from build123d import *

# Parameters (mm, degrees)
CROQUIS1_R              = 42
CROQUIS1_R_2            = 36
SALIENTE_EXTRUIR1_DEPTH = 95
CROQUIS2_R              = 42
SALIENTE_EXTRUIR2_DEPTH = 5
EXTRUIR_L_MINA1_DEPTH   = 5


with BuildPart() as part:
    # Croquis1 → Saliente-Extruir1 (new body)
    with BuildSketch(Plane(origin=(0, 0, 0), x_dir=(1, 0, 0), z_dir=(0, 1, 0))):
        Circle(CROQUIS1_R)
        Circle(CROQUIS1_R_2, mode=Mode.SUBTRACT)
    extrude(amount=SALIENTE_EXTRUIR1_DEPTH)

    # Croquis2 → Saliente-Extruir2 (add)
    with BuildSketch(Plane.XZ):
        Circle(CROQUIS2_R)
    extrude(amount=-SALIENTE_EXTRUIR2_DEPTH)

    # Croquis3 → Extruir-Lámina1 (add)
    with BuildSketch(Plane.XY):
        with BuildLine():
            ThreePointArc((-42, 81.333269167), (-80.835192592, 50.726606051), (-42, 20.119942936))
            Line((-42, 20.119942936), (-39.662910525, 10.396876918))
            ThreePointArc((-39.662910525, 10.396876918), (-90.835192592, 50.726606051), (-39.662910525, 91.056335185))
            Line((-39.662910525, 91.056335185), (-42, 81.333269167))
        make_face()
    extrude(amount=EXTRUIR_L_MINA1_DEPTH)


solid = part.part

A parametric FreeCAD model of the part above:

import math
import FreeCAD as App
import Part
import Sketcher

doc = App.newDocument("Part")
params = doc.addObject("Spreadsheet::Sheet", "Params")
for row, (alias, value) in enumerate([
    ("sketch1_diameter", "84 mm"),
    ("sketch1_diameter2", "72 mm"),
    ("pad1_length", "95 mm"),
    ("sketch2_diameter", "84 mm"),
    ("pad2_length", "5 mm"),
    ("sketch3_length", "10 mm"),
    ("pad3_length", "5 mm"),
], start=1):
    params.set(f"A{row}", alias)
    params.set(f"B{row}", "=" + value)
    params.setAlias(f"B{row}", alias)

body = doc.addObject("PartDesign::Body", "Body")

# Sketch on XZ plane
sketch1 = body.newObject("Sketcher::SketchObject", "Sketch")
sketch1.AttachmentSupport = (doc.getObject("XZ_Plane"), [""])
sketch1.MapMode = "FlatFace"
sketch1.addGeometry([
    Part.Circle(App.Vector(0, 0, 0), App.Vector(0, 0, 1), 42),
    Part.Circle(App.Vector(0, 0, 0), App.Vector(0, 0, 1), 36),
], False)
sketch1.addConstraint([
    Sketcher.Constraint("Coincident", 0, 3, -1, 1),
    Sketcher.Constraint("Coincident", 1, 3, -1, 1),
    Sketcher.Constraint("Diameter", 0, 84.0),
    Sketcher.Constraint("Diameter", 1, 72.0),
])
sketch1.setExpression("Constraints[2]", "Params.sketch1_diameter")
sketch1.setExpression("Constraints[3]", "Params.sketch1_diameter2")
pad1 = body.newObject("PartDesign::Pad", "Pad")
pad1.Profile = sketch1
pad1.setExpression("Length", "Params.pad1_length")
pad1.Reversed = True

# Sketch on XZ plane
sketch2 = body.newObject("Sketcher::SketchObject", "Sketch001")
sketch2.AttachmentSupport = (doc.getObject("XZ_Plane"), [""])
sketch2.MapMode = "FlatFace"
sketch2.addGeometry(Part.Circle(App.Vector(0, 0, 0), App.Vector(0, 0, 1), 42), False)
sketch2.addConstraint([
    Sketcher.Constraint("Coincident", 0, 3, -1, 1),
    Sketcher.Constraint("Diameter", 0, 84.0),
])
sketch2.setExpression("Constraints[1]", "Params.sketch2_diameter")
pad2 = body.newObject("PartDesign::Pad", "Pad001")
pad2.Profile = sketch2
pad2.setExpression("Length", "Params.pad2_length")
pad2.Reversed = True

# Sketch on XY plane
sketch3 = body.newObject("Sketcher::SketchObject", "Sketch002")
sketch3.AttachmentSupport = (doc.getObject("XY_Plane"), [""])
sketch3.MapMode = "FlatFace"
sketch3.addGeometry([
    Part.ArcOfCircle(Part.Circle(App.Vector(-49, 51, 0), App.Vector(0, 0, 1), 31), math.radians(76), math.radians(284)),
    Part.LineSegment(App.Vector(-42, 81, 0), App.Vector(-40, 91, 0)),
    Part.ArcOfCircle(Part.Circle(App.Vector(-49, 51, 0), App.Vector(0, 0, 1), 41), math.radians(76), math.radians(284)),
    Part.LineSegment(App.Vector(-40, 10, 0), App.Vector(-42, 20, 0)),
], False)
sketch3.addConstraint([
    Sketcher.Constraint("Coincident", 0, 1, 1, 1),
    Sketcher.Constraint("Coincident", 1, 2, 2, 1),
    Sketcher.Constraint("Coincident", 2, 2, 3, 1),
    Sketcher.Constraint("Coincident", 3, 2, 0, 2),
    Sketcher.Constraint("Coincident", 2, 3, 0, 3),
    Sketcher.Constraint("Vertical", 1, 2, 2, 2),
    Sketcher.Constraint("Vertical", 0, 1, 3, 2),
    Sketcher.Constraint("Distance", 1, 10.0),
    Sketcher.Constraint("DistanceX", 0, 1, -1, 1, 42.0),
    Sketcher.Constraint("Radius", 0, 31.478407),
    Sketcher.Constraint("DistanceY", -1, 1, 0, 1, 81.333269),
    Sketcher.Constraint("DistanceX", 1, 2, -1, 1, 39.662911),
    Sketcher.Constraint("DistanceY", 0, 3, 1, 2, 40.329729),
])
sketch3.setExpression("Constraints[7]", "Params.sketch3_length")
pad3 = body.newObject("PartDesign::Pad", "Pad002")
pad3.Profile = sketch3
pad3.setExpression("Length", "Params.pad3_length")

doc.recompute()
